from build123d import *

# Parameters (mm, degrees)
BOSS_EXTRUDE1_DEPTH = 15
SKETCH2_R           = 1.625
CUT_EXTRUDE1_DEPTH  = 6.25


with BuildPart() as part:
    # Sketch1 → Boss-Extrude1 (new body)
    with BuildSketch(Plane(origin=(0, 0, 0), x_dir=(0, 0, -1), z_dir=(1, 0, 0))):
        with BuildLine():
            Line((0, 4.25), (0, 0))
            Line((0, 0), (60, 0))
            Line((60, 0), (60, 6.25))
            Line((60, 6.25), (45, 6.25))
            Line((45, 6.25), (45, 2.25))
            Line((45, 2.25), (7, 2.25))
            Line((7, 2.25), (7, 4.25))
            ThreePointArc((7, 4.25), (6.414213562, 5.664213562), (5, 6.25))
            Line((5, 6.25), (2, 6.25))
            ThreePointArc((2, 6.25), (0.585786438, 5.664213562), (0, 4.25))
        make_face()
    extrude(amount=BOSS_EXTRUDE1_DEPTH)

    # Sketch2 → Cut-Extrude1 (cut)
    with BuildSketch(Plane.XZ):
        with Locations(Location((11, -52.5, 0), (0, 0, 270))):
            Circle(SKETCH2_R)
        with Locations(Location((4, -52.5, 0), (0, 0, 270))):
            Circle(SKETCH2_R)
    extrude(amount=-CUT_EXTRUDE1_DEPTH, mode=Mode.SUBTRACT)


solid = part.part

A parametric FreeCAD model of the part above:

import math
import FreeCAD as App
import Part
import Sketcher
from FreeCAD import Vector
Q = App.Units.Quantity

doc = App.newDocument("Part")
params = doc.addObject("Spreadsheet::Sheet", "Params")
for row, (alias, value) in enumerate([
    ("sketch1_radius", "2 mm"),
    ("sketch1_width", "4 mm"),
    ("sketch1_height", "60 mm"),
    ("sketch1_height2", "15 mm"),
    ("sketch1_height3", "38 mm"),
    ("pad1_length", "15 mm"),
    ("sketch2_diameter", "3.25 mm"),
    ("pocket1_length", "6.25 mm"),
], start=1):
    params.set(f"A{row}", alias)
    params.set(f"B{row}", "=" + value)
    params.setAlias(f"B{row}", alias)

body = doc.addObject("PartDesign::Body", "Body")

# Sketch on YZ plane
sketch1 = body.newObject("Sketcher::SketchObject", "Sketch")
sketch1.AttachmentSupport = (doc.getObject("YZ_Plane"), [""])
sketch1.MapMode = "FlatFace"
sketch1.addGeometry([
    Part.LineSegment(Vector(4.25, 0, 0), Vector(0, 0, 0)),  # 0
    Part.LineSegment(Vector(0, 0, 0), Vector(0, -60, 0)),  # 1
    Part.LineSegment(Vector(0, -60, 0), Vector(6.25, -60, 0)),  # 2
    Part.LineSegment(Vector(6.25, -60, 0), Vector(6.25, -45, 0)),  # 3
    Part.LineSegment(Vector(6.25, -45, 0), Vector(2.25, -45, 0)),  # 4
    Part.LineSegment(Vector(2.25, -45, 0), Vector(2.25, -7, 0)),  # 5
    Part.LineSegment(Vector(2.25, -7, 0), Vector(4.25, -7, 0)),  # 6
    Part.ArcOfCircle(Part.Circle(Vector(4.25, -5, 0), Vector(0, 0, 1), 2), math.radians(-90), math.radians(0)),  # 7
    Part.LineSegment(Vector(6.25, -5, 0), Vector(6.25, -2, 0)),  # 8
    Part.ArcOfCircle(Part.Circle(Vector(4.25, -2, 0), Vector(0, 0, 1), 2), math.radians(0), math.radians(90)),  # 9
], False)
sketch1.addConstraint([
    Sketcher.Constraint("Coincident", 0, 2, 1, 1),
    Sketcher.Constraint("Coincident", 1, 2, 2, 1),
    Sketcher.Constraint("Coincident", 2, 2, 3, 1),
    Sketcher.Constraint("Coincident", 3, 2, 4, 1),
    Sketcher.Constraint("Coincident", 4, 2, 5, 1),
    Sketcher.Constraint("Coincident", 5, 2, 6, 1),
    Sketcher.Constraint("Tangent", 6, 2, 7, 1),
    Sketcher.Constraint("Tangent", 7, 2, 8, 1),
    Sketcher.Constraint("Tangent", 8, 2, 9, 1),
    Sketcher.Constraint("Tangent", 9, 2, 0, 1),
    Sketcher.Constraint("Horizontal", 0),
    Sketcher.Constraint("Vertical", 1),
    Sketcher.Constraint("Horizontal", 2),
    Sketcher.Constraint("Vertical", 3),
    Sketcher.Constraint("Horizontal", 4),
    Sketcher.Constraint("Vertical", 5),
    Sketcher.Constraint("Horizontal", 6),
    Sketcher.Constraint("Vertical", 8),
    Sketcher.Constraint("Coincident", 0, 2, -1, 1),
    Sketcher.Constraint("Equal", 7, 9),
    Sketcher.Constraint("Vertical", 3, 2, 7, 2),
    Sketcher.Constraint("Radius", 7, Q("2 mm")),
    Sketcher.Constraint("DistanceX", 4, 2, 4, 1, Q("4 mm")),
    Sketcher.Constraint("DistanceY", 1, 2, 1, 1, Q("60 mm")),
    Sketcher.Constraint("DistanceY", 3, 1, 3, 2, Q("15 mm")),
    Sketcher.Constraint("DistanceY", 5, 1, 5, 2, Q("38 mm")),
    Sketcher.Constraint("DistanceX", 0, 2, 0, 1, Q("4.25 mm")),
])
sketch1.setExpression("Constraints[21]", "Params.sketch1_radius")
sketch1.setExpression("Constraints[22]", "Params.sketch1_width")
sketch1.setExpression("Constraints[23]", "Params.sketch1_height")
sketch1.setExpression("Constraints[24]", "Params.sketch1_height2")
sketch1.setExpression("Constraints[25]", "Params.sketch1_height3")
pad1 = body.newObject("PartDesign::Pad", "Pad")
pad1.Profile = sketch1
pad1.setExpression("Length", "Params.pad1_length")

# Sketch on XZ plane
sketch2 = body.newObject("Sketcher::SketchObject", "Sketch001")
sketch2.AttachmentSupport = (doc.getObject("XZ_Plane"), [""])
sketch2.MapMode = "FlatFace"
sketch2.addGeometry([
    Part.Circle(Vector(11, -52.5, 0), Vector(0, 0, 1), 1.625),
    Part.Circle(Vector(4, -52.5, 0), Vector(0, 0, 1), 1.625),
], False)
sketch2.addConstraint([
    Sketcher.Constraint("Equal", 0, 1),
    Sketcher.Constraint("Horizontal", 0, 3, 1, 3),
    Sketcher.Constraint("Diameter", 0, Q("3.25 mm")),
    Sketcher.Constraint("DistanceX", -1, 1, 0, 3, Q("11 mm")),
    Sketcher.Constraint("DistanceX", -1, 1, 1, 3, Q("4 mm")),
    Sketcher.Constraint("DistanceY", 0, 3, -1, 1, Q("52.5 mm")),
])
sketch2.setExpression("Constraints[2]", "Params.sketch2_diameter")
pocket1 = body.newObject("PartDesign::Pocket", "Pocket")
pocket1.Profile = sketch2
pocket1.setExpression("Length", "Params.pocket1_length")

doc.recompute()
